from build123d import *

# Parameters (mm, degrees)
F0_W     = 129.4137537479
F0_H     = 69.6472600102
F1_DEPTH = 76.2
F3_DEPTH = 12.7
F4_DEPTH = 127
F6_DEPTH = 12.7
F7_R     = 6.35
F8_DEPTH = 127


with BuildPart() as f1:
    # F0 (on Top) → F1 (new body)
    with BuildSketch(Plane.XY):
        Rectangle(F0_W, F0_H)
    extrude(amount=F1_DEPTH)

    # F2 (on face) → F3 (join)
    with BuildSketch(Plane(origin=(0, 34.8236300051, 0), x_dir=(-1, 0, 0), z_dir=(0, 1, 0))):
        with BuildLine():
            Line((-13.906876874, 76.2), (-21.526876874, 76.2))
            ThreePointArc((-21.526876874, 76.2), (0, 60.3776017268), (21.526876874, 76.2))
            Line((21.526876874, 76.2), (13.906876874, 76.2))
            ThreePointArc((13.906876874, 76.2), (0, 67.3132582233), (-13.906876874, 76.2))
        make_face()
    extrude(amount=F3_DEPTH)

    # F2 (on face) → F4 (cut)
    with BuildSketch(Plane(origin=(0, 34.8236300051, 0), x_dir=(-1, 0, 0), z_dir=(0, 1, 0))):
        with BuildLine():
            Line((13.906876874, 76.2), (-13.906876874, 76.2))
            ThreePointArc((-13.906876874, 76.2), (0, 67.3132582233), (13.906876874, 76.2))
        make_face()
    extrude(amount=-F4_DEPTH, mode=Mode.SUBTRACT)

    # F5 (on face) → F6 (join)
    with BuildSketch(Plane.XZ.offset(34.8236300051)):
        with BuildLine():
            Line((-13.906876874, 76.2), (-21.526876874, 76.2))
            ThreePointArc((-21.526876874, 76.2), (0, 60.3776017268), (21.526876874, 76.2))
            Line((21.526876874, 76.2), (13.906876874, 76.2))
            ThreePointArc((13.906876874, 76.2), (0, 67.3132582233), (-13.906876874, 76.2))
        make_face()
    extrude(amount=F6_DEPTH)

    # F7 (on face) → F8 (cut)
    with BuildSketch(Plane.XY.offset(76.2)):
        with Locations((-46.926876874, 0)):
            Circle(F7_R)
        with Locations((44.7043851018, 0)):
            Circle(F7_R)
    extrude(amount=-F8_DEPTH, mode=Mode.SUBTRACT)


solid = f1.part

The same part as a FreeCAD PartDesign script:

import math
import FreeCAD as App
import Part
import Sketcher

V = App.Vector
Q = App.Units.Quantity

doc = App.newDocument("Part")
body = doc.addObject("PartDesign::Body", "Body")

# Sketch on XY plane
sketch1 = body.newObject("Sketcher::SketchObject", "Sketch")
sketch1.AttachmentSupport = (doc.getObject("XY_Plane"), [""])
sketch1.MapMode = "FlatFace"
sketch1.addGeometry([
    Part.LineSegment(V(-64.706877, 34.82363, 0), V(-64.706877, -34.82363, 0)),
    Part.LineSegment(V(-64.706877, -34.82363, 0), V(64.706877, -34.82363, 0)),
    Part.LineSegment(V(64.706877, -34.82363, 0), V(64.706877, 34.82363, 0)),
    Part.LineSegment(V(64.706877, 34.82363, 0), V(-64.706877, 34.82363, 0)),
], False)
sketch1.addConstraint([
    Sketcher.Constraint("Coincident", 0, 2, 1, 1),
    Sketcher.Constraint("Coincident", 1, 2, 2, 1),
    Sketcher.Constraint("Coincident", 2, 2, 3, 1),
    Sketcher.Constraint("Coincident", 3, 2, 0, 1),
    Sketcher.Constraint("Vertical", 0),
    Sketcher.Constraint("Horizontal", 1),
    Sketcher.Constraint("Vertical", 2),
    Sketcher.Constraint("Horizontal", 3),
    Sketcher.Constraint("Symmetric", 0, 2, 2, 2, -1, 1),
    Sketcher.Constraint("DistanceY", 0, 2, 0, 1, Q("69.64726 mm")),
    Sketcher.Constraint("DistanceX", 1, 1, 1, 2, Q("129.413754 mm")),
])
pad1 = body.newObject("PartDesign::Pad", "Pad")
pad1.Profile = sketch1
pad1.Length = Q("3 in")

# Sketch on XZ plane
sketch2 = body.newObject("Sketcher::SketchObject", "Sketch001")
sketch2.AttachmentSupport = (doc.getObject("XZ_Plane"), [""])
sketch2.MapMode = "FlatFace"
sketch2.AttachmentOffset = App.Placement(V(0, 0, -34.82363), App.Rotation())
sketch2.addGeometry([
    Part.LineSegment(V(13.906877, 76.2, 0), V(21.526877, 76.2, 0)),
    Part.ArcOfCircle(Part.Circle(V(0, 82.932802, 0), V(0, 0, 1), 22.5552), math.radians(-162.63227), math.radians(-17.36773)),
    Part.LineSegment(V(-21.526877, 76.2, 0), V(-13.906877, 76.2, 0)),
    Part.ArcOfCircle(Part.Circle(V(0, 82.638076, 0), V(0, 0, 1), 15.324818), math.radians(-155.158603), math.radians(-24.841397)),
], False)
sketch2.addConstraint([
    Sketcher.Constraint("Coincident", 0, 2, 1, 2),
    Sketcher.Constraint("Coincident", 1, 1, 2, 1),
    Sketcher.Constraint("Coincident", 2, 2, 3, 1),
    Sketcher.Constraint("Coincident", 3, 2, 0, 1),
    Sketcher.Constraint("Horizontal", 0),
    Sketcher.Constraint("Horizontal", 2),
    Sketcher.Constraint("Symmetric", 0, 2, 1, 1, -2),
    Sketcher.Constraint("PointOnObject", 3, 3, -2),
    Sketcher.Constraint("DistanceX", 0, 1, 0, 2, Q("0.3 in")),
    Sketcher.Constraint("DistanceY", -1, 1, 0, 2, Q("3 in")),
    Sketcher.Constraint("Radius", 1, Q("0.888 in")),
    Sketcher.Constraint("Radius", 3, Q("15.324818 mm")),
    Sketcher.Constraint("DistanceY", -1, 1, 1, 3, Q("82.932802 mm")),
])
pad2 = body.newObject("PartDesign::Pad", "Pad001")
pad2.Profile = sketch2
pad2.Length = Q("0.5 in")
pad2.Reversed = True

# Sketch on XZ plane
sketch3 = body.newObject("Sketcher::SketchObject", "Sketch002")
sketch3.AttachmentSupport = (doc.getObject("XZ_Plane"), [""])
sketch3.MapMode = "FlatFace"
sketch3.AttachmentOffset = App.Placement(V(0, 0, -34.82363), App.Rotation())
sketch3.addGeometry([
    Part.LineSegment(V(-13.906877, 76.2, 0), V(13.906877, 76.2, 0)),
    Part.ArcOfCircle(Part.Circle(V(0, 82.638076, 0), V(0, 0, 1), 15.324818), math.radians(-155.158603), math.radians(-24.841397)),
], False)
sketch3.addConstraint([
    Sketcher.Constraint("Coincident", 0, 1, 1, 1),
    Sketcher.Constraint("Coincident", 1, 2, 0, 2),
    Sketcher.Constraint("Horizontal", 0),
    Sketcher.Constraint("PointOnObject", 1, 3, -2),
    Sketcher.Constraint("DistanceY", -1, 1, 0, 1, Q("3 in")),
    Sketcher.Constraint("Radius", 1, Q("15.324818 mm")),
    Sketcher.Constraint("DistanceX", 0, 1, 0, 2, Q("27.813754 mm")),
])
pocket1 = body.newObject("PartDesign::Pocket", "Pocket")
pocket1.Profile = sketch3
pocket1.Length = Q("5 in")
pocket1.Reversed = True

# Sketch on XZ plane
sketch4 = body.newObject("Sketcher::SketchObject", "Sketch003")
sketch4.AttachmentSupport = (doc.getObject("XZ_Plane"), [""])
sketch4.MapMode = "FlatFace"
sketch4.AttachmentOffset = App.Placement(V(0, 0, 34.82363), App.Rotation())
sketch4.addGeometry([
    Part.LineSegment(V(-13.906877, 76.2, 0), V(-21.526877, 76.2, 0)),
    Part.ArcOfCircle(Part.Circle(V(0, 82.932802, 0), V(0, 0, 1), 22.5552), math.radians(-162.63227), math.radians(-17.36773)),
    Part.LineSegment(V(21.526877, 76.2, 0), V(13.906877, 76.2, 0)),
    Part.ArcOfCircle(Part.Circle(V(0, 82.638076, 0), V(0, 0, 1), 15.324818), math.radians(-155.158603), math.radians(-24.841397)),
], False)
sketch4.addConstraint([
    Sketcher.Constraint("Coincident", 0, 2, 1, 1),
    Sketcher.Constraint("Coincident", 1, 2, 2, 1),
    Sketcher.Constraint("Coincident", 2, 2, 3, 2),
    Sketcher.Constraint("Coincident", 3, 1, 0, 1),
    Sketcher.Constraint("Horizontal", 0),
    Sketcher.Constraint("Horizontal", 2),
    Sketcher.Constraint("Symmetric", 0, 2, 1, 2, -2),
    Sketcher.Constraint("PointOnObject", 3, 3, -2),
    Sketcher.Constraint("DistanceX", 0, 2, 0, 1, Q("0.3 in")),
    Sketcher.Constraint("DistanceY", -1, 1, 0, 2, Q("3 in")),
    Sketcher.Constraint("Radius", 1, Q("0.888 in")),
    Sketcher.Constraint("Radius", 3, Q("15.324818 mm")),
    Sketcher.Constraint("DistanceY", -1, 1, 1, 3, Q("82.932802 mm")),
])
pad3 = body.newObject("PartDesign::Pad", "Pad002")
pad3.Profile = sketch4
pad3.Length = Q("0.5 in")

# Sketch on XY plane
sketch5 = body.newObject("Sketcher::SketchObject", "Sketch004")
sketch5.AttachmentSupport = (doc.getObject("XY_Plane"), [""])
sketch5.MapMode = "FlatFace"
sketch5.AttachmentOffset = App.Placement(V(0, 0, 3 * 25.4), App.Rotation())
sketch5.addGeometry([
    Part.Circle(V(-46.926877, 0, 0), V(0, 0, 1), 6.35),
    Part.Circle(V(44.704385, 0, 0), V(0, 0, 1), 6.35),
], False)
sketch5.addConstraint([
    Sketcher.Constraint("Equal", 0, 1),
    Sketcher.Constraint("PointOnObject", 0, 3, -1),
    Sketcher.Constraint("PointOnObject", 1, 3, -1),
    Sketcher.Constraint("Diameter", 0, Q("0.5 in")),
    Sketcher.Constraint("DistanceX", 0, 3, 1, 3, Q("91.631262 mm")),
    Sketcher.Constraint("DistanceX", 0, 3, -1, 1, Q("46.926877 mm")),
])
pocket2 = body.newObject("PartDesign::Pocket", "Pocket001")
pocket2.Profile = sketch5
pocket2.Length = Q("5 in")

doc.recompute()
